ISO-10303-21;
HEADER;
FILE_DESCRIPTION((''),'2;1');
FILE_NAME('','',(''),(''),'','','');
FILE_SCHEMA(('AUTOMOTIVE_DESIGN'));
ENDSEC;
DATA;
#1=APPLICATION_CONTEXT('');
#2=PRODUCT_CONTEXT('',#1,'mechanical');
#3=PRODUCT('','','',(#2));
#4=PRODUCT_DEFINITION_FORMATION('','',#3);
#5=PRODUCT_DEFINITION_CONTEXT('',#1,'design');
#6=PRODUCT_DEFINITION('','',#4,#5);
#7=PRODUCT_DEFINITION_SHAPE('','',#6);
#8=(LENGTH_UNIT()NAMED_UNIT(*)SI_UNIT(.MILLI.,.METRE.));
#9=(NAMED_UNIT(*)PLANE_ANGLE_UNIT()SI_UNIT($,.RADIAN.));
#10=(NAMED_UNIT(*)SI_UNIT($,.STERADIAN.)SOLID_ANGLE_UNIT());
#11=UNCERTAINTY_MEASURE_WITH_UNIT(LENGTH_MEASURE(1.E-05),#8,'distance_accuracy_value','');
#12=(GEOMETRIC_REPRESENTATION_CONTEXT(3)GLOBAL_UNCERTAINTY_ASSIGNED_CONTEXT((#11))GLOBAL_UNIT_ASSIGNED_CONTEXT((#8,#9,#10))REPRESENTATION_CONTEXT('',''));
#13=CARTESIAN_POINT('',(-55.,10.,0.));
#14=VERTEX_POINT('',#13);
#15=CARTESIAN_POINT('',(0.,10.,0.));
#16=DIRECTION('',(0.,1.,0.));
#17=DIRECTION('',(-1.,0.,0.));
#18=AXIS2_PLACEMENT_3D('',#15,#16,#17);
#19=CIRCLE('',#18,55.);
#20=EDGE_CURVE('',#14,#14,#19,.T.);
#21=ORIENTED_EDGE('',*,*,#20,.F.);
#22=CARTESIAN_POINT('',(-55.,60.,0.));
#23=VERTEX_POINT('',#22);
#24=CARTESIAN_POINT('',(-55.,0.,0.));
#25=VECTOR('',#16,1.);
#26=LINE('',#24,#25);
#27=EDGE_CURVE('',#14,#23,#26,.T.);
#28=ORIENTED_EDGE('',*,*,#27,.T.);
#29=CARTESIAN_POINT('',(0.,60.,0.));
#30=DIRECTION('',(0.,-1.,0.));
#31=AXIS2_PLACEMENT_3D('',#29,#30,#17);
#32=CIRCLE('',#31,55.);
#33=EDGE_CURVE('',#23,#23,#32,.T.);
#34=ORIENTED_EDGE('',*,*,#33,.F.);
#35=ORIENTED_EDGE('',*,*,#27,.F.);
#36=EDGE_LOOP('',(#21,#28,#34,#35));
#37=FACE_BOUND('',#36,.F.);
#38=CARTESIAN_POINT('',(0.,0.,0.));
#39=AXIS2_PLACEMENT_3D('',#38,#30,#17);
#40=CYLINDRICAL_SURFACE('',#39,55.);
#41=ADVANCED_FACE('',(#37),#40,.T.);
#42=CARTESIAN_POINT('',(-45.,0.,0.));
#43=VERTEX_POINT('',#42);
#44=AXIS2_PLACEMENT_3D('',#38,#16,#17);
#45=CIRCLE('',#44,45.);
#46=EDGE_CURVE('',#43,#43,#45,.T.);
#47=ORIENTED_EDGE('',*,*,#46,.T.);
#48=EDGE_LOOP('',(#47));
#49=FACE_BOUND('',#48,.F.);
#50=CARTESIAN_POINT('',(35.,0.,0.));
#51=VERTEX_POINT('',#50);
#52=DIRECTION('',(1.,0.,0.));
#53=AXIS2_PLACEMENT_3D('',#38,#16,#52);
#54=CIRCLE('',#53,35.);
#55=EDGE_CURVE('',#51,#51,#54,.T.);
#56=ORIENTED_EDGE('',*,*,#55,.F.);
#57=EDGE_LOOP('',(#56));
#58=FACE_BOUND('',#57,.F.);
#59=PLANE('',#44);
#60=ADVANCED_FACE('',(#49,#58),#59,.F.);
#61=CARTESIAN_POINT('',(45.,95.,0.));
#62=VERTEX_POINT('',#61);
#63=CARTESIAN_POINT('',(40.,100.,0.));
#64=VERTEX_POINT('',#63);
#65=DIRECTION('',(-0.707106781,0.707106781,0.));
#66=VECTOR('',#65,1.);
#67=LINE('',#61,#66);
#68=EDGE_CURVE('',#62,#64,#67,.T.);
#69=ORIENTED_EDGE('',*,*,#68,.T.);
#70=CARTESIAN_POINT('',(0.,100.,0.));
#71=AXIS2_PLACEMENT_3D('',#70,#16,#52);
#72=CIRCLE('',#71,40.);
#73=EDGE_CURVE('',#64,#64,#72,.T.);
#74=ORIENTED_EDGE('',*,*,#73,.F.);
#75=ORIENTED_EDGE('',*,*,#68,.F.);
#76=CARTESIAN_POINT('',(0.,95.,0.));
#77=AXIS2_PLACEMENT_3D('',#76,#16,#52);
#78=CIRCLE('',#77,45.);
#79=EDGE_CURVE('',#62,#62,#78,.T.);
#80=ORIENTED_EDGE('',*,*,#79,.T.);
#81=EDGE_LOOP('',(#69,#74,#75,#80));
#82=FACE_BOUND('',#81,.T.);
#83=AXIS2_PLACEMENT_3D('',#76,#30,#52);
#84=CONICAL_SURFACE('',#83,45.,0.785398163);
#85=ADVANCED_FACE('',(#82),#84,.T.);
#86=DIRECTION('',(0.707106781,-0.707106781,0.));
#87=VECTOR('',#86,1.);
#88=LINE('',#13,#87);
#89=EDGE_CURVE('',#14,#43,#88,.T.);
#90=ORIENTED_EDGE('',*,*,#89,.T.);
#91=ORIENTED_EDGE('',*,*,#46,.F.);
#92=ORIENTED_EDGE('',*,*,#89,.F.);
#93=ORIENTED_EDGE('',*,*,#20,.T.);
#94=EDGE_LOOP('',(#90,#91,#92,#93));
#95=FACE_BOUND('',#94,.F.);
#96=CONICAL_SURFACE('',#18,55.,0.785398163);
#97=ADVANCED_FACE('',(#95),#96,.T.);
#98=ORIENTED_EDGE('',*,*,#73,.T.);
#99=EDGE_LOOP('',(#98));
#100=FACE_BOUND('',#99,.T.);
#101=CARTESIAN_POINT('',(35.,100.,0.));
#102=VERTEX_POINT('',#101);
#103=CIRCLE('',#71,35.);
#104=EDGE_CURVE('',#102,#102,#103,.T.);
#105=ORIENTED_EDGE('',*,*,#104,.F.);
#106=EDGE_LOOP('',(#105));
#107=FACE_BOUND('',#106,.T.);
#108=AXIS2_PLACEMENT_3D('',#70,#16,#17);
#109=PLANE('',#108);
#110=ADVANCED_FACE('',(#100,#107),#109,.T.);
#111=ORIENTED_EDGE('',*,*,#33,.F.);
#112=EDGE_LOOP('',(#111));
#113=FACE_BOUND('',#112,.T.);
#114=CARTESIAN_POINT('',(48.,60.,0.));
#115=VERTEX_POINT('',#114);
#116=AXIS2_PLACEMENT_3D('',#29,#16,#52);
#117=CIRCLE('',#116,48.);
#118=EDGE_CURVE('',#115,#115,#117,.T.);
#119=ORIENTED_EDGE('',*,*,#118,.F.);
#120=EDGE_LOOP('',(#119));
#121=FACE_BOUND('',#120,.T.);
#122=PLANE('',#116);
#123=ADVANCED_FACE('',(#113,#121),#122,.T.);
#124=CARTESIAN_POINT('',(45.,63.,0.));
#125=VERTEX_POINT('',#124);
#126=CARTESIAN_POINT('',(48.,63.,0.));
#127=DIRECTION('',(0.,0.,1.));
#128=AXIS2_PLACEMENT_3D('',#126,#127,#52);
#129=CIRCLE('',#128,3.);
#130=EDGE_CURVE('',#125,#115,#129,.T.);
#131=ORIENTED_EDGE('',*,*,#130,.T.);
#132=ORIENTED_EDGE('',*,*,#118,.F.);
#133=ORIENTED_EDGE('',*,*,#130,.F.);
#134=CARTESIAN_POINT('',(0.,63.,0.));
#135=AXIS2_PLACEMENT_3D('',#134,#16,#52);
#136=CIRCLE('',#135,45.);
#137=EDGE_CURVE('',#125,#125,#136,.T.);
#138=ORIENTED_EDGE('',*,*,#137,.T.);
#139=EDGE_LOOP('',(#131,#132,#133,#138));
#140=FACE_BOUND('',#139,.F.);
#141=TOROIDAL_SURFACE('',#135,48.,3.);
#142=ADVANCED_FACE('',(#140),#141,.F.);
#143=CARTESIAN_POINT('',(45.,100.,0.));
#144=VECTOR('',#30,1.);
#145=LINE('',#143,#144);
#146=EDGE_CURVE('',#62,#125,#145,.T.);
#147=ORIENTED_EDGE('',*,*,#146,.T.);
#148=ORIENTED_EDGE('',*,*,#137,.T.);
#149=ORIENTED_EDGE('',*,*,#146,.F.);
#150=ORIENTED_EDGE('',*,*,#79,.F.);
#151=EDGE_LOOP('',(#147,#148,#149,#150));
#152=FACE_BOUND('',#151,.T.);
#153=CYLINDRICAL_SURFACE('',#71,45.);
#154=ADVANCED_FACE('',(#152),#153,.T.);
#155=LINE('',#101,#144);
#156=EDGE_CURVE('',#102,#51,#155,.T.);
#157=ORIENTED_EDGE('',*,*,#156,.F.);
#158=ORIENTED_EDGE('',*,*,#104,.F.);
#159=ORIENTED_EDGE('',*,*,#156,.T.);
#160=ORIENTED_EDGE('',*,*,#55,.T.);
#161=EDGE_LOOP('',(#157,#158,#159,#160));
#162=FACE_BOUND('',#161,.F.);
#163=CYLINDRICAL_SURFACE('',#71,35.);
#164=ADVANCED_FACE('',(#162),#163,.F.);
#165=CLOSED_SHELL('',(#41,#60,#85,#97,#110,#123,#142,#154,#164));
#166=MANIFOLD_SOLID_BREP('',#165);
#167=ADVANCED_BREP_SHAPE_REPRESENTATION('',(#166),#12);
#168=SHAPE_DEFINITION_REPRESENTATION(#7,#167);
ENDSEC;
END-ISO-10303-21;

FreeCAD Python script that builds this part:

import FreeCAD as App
import Part
import Sketcher


def edges_at(feature, points):
    """Names of the edges that pass closest to the given points."""
    edges = feature.Shape.Edges
    near = lambda p: min(range(len(edges)), key=lambda i: edges[i].distToShape(Part.Vertex(*p))[0])
    return sorted({f"Edge{near(p) + 1}" for p in points})

doc = App.newDocument("Part")
body = doc.addObject("PartDesign::Body", "Body")

sketch1 = body.newObject("Sketcher::SketchObject", "Sketch")
sketch1.AttachmentSupport = (doc.getObject("XZ_Plane"), [""])
sketch1.MapMode = "FlatFace"
sketch1.addGeometry(Part.Circle(App.Vector(0, 0, 0), App.Vector(0, 0, 1), 55), False)
sketch1.addConstraint([
    Sketcher.Constraint("Coincident", 0, 3, -1, 1),
    Sketcher.Constraint("Diameter", 0, 110.0),
])
pad1 = body.newObject("PartDesign::Pad", "Pad")
pad1.Profile = sketch1
pad1.Length = 100
pad1.Reversed = True

sketch2 = body.newObject("Sketcher::SketchObject", "Sketch001")
sketch2.AttachmentSupport = (doc.getObject("XZ_Plane"), [""])
sketch2.MapMode = "FlatFace"
sketch2.AttachmentOffset = App.Placement(App.Vector(0, 0, -100), App.Rotation())
sketch2.addGeometry(Part.Circle(App.Vector(0, 0, 0), App.Vector(0, 0, 1), 35), False)
sketch2.addConstraint([
    Sketcher.Constraint("Coincident", 0, 3, -1, 1),
    Sketcher.Constraint("Diameter", 0, 70.0),
])
pocket1 = body.newObject("PartDesign::Pocket", "Pocket")
pocket1.Profile = sketch2
pocket1.Length = 100
pocket1.Reversed = True

sketch3 = body.newObject("Sketcher::SketchObject", "Sketch002")
sketch3.AttachmentSupport = (doc.getObject("XZ_Plane"), [""])
sketch3.MapMode = "FlatFace"
sketch3.AttachmentOffset = App.Placement(App.Vector(0, 0, -100), App.Rotation())
sketch3.addGeometry([
    Part.Circle(App.Vector(0, 0, 0), App.Vector(0, 0, 1), 55),
    Part.Circle(App.Vector(0, 0, 0), App.Vector(0, 0, 1), 45),
], False)
sketch3.addConstraint([
    Sketcher.Constraint("Coincident", 0, 3, -1, 1),
    Sketcher.Constraint("Coincident", 1, 3, -1, 1),
    Sketcher.Constraint("Diameter", 0, 110.0),
    Sketcher.Constraint("Diameter", 1, 90.0),
])
pocket2 = body.newObject("PartDesign::Pocket", "Pocket001")
pocket2.Profile = sketch3
pocket2.Length = 40
pocket2.Reversed = True
doc.recompute()

chamfer = body.newObject("PartDesign::Chamfer", "Chamfer")
chamfer.Base = (pocket2, edges_at(pocket2, [(55, 0, 0)]))
chamfer.Size = 10
doc.recompute()

chamfer2 = body.newObject("PartDesign::Chamfer", "Chamfer001")
chamfer2.Base = (chamfer, edges_at(chamfer, [(-45, 100, 0)]))
chamfer2.Size = 5
doc.recompute()

fillet = body.newObject("PartDesign::Fillet", "Fillet")
fillet.Base = (chamfer2, edges_at(chamfer2, [(-45, 60, 0)]))
fillet.Radius = 3

doc.recompute()
